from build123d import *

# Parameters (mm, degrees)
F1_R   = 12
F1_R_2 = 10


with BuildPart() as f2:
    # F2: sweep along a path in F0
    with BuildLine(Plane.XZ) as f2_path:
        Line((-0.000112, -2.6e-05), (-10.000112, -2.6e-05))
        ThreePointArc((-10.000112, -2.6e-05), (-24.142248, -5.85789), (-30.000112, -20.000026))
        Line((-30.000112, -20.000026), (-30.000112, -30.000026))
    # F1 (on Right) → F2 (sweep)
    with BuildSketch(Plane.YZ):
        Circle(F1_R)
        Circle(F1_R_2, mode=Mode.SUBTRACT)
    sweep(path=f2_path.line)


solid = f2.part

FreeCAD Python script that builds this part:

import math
import FreeCAD as App
import Part
import Sketcher
Q = App.Units.Quantity

doc = App.newDocument("Part")
body = doc.addObject("PartDesign::Body", "Body")

# Sketch on YZ plane
sketch1 = doc.addObject("Sketcher::SketchObject", "Sketch")
body.addObject(sketch1)
sketch1.AttachmentSupport = (doc.YZ_Plane, [""])
sketch1.MapMode = "FlatFace"
sketch1.addGeometry(Part.Circle(App.Vector(0, 0, 0), App.Vector(0, 0, 1), 12), False)
sketch1.addGeometry(Part.Circle(App.Vector(0, 0, 0), App.Vector(0, 0, 1), 10), False)
sketch1.addConstraint(Sketcher.Constraint("Coincident", 0, 3, -1, 1))
sketch1.addConstraint(Sketcher.Constraint("Coincident", 1, 3, -1, 1))
sketch1.addConstraint(Sketcher.Constraint("Diameter", 0, Q("24 mm")))
sketch1.addConstraint(Sketcher.Constraint("Diameter", 1, Q("20 mm")))

# Sketch on XZ plane
sketch2 = doc.addObject("Sketcher::SketchObject", "Sketch001")
body.addObject(sketch2)
sketch2.AttachmentSupport = (doc.XZ_Plane, [""])
sketch2.MapMode = "FlatFace"
sketch2.addGeometry(Part.LineSegment(App.Vector(0, 0, 0), App.Vector(-10, 0, 0)), False)
sketch2.addGeometry(Part.ArcOfCircle(Part.Circle(App.Vector(-10, -20, 0), App.Vector(0, 0, 1), 20), math.radians(90), math.radians(180)), False)
sketch2.addGeometry(Part.LineSegment(App.Vector(-30, -20, 0), App.Vector(-30, -30, 0)), False)
sketch2.addConstraint(Sketcher.Constraint("Tangent", 0, 2, 1, 1))
sketch2.addConstraint(Sketcher.Constraint("Tangent", 1, 2, 2, 1))
sketch2.addConstraint(Sketcher.Constraint("Horizontal", 0))
sketch2.addConstraint(Sketcher.Constraint("Vertical", 2))
sketch2.addConstraint(Sketcher.Constraint("Equal", 0, 2))
sketch2.addConstraint(Sketcher.Constraint("Radius", 1, Q("19.999999 mm")))
sketch2.addConstraint(Sketcher.Constraint("DistanceX", 0, 2, 0, 1, Q("10 mm")))
sketch2.addConstraint(Sketcher.Constraint("DistanceX", 0, 1, -1, 1, Q("0.000112 mm")))
sketch2.addConstraint(Sketcher.Constraint("DistanceY", 1, 3, -1, 1, Q("20.000025 mm")))
doc.recompute()

additivepipe = doc.addObject("PartDesign::AdditivePipe", "AdditivePipe")
body.addObject(additivepipe)
additivepipe.Profile = sketch1
additivepipe.Spine = (sketch2, ["Edge1", "Edge2", "Edge3"])

doc.recompute()
